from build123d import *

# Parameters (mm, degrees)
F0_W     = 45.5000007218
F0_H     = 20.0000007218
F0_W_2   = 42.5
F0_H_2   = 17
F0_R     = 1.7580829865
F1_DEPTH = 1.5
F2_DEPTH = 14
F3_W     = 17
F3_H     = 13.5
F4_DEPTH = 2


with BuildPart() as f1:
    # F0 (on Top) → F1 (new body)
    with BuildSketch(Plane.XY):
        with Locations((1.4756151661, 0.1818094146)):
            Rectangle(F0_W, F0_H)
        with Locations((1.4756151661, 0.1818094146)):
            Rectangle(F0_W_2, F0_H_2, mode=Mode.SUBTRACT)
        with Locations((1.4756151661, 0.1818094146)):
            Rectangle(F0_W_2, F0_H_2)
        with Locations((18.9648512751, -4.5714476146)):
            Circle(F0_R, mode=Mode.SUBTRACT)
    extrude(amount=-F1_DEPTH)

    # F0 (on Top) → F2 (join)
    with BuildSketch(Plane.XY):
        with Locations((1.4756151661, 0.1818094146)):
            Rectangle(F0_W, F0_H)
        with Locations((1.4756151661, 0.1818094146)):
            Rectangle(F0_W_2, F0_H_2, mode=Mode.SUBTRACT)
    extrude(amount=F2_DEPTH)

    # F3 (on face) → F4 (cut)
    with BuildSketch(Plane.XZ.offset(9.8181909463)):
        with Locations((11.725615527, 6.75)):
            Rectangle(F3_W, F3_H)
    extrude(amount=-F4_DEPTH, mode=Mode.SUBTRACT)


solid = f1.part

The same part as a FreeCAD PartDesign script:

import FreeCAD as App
import Part
import Sketcher


def add_polygon(sketch, points):
    """Adds a closed chain of lines whose ends are joined by coincident constraints."""
    first, n = sketch.GeometryCount, len(points)
    for a, b in zip(points, points[1:] + points[:1]):
        sketch.addGeometry(Part.LineSegment(App.Vector(*a, 0), App.Vector(*b, 0)), False)
    for i in range(n):
        sketch.addConstraint(Sketcher.Constraint("Coincident", first + i, 2, first + (i + 1) % n, 1))

doc = App.newDocument("Part")
params = doc.addObject("Spreadsheet::Sheet", "Params")
for row, (alias, value) in enumerate([
    ("sketch1_height", "20.000001 mm"),
    ("sketch1_width", "45.500001 mm"),
    ("pad1_length", "1.5 mm"),
    ("sketch2_height", "20.000001 mm"),
    ("sketch2_height2", "17 mm"),
    ("sketch2_width", "45.500001 mm"),
    ("sketch2_width2", "42.5 mm"),
    ("pad2_length", "14 mm"),
    ("sketch3_width", "17 mm"),
    ("sketch3_height", "13.5 mm"),
    ("pocket1_length", "2 mm"),
], start=1):
    params.set(f"A{row}", alias)
    params.set(f"B{row}", "=" + value)
    params.setAlias(f"B{row}", alias)

body = doc.addObject("PartDesign::Body", "Body")

sketch1 = body.newObject("Sketcher::SketchObject", "Sketch")
sketch1.AttachmentSupport = (doc.getObject("XY_Plane"), [""])
sketch1.MapMode = "FlatFace"
add_polygon(sketch1, [(-21.3, 10.2), (-21.3, -9.8), (24.2, -9.8), (24.2, 10.2)])
sketch1.addGeometry(Part.Circle(App.Vector(19, -4.6, 0), App.Vector(0, 0, 1), 1.8), False)
sketch1.addConstraint([
    Sketcher.Constraint("Vertical", 0),
    Sketcher.Constraint("Horizontal", 1),
    Sketcher.Constraint("Vertical", 2),
    Sketcher.Constraint("Horizontal", 3),
    Sketcher.Constraint("DistanceY", 0, 2, 0, 1, 20.000001),
    Sketcher.Constraint("DistanceX", 1, 1, 1, 2, 45.500001),
    Sketcher.Constraint("Diameter", 4, 3.516166),
    Sketcher.Constraint("DistanceX", -1, 1, 4, 3, 18.964851),
    Sketcher.Constraint("DistanceY", 0, 2, -1, 1, 9.818191),
    Sketcher.Constraint("DistanceY", 4, 3, -1, 1, 4.571448),
    Sketcher.Constraint("DistanceX", 0, 2, -1, 1, 21.274385),
])
sketch1.setExpression("Constraints[8]", "Params.sketch1_height")
sketch1.setExpression("Constraints[9]", "Params.sketch1_width")
pad1 = body.newObject("PartDesign::Pad", "Pad")
pad1.Profile = sketch1
pad1.setExpression("Length", "Params.pad1_length")
pad1.Reversed = True

sketch2 = body.newObject("Sketcher::SketchObject", "Sketch001")
sketch2.AttachmentSupport = (doc.getObject("XY_Plane"), [""])
sketch2.MapMode = "FlatFace"
add_polygon(sketch2, [(-21, 10), (-21, -10), (24, -10), (24, 10)])
add_polygon(sketch2, [(23, -8), (-20, -8), (-20, 9), (23, 9)])
sketch2.addConstraint([
    Sketcher.Constraint("Vertical", 0),
    Sketcher.Constraint("Horizontal", 1),
    Sketcher.Constraint("Vertical", 2),
    Sketcher.Constraint("Horizontal", 3),
    Sketcher.Constraint("Horizontal", 4),
    Sketcher.Constraint("Vertical", 5),
    Sketcher.Constraint("Horizontal", 6),
    Sketcher.Constraint("Vertical", 7),
    Sketcher.Constraint("DistanceY", 0, 2, 0, 1, 20.000001),
    Sketcher.Constraint("DistanceY", 5, 1, 5, 2, 17.0),
    Sketcher.Constraint("DistanceX", 1, 1, 1, 2, 45.500001),
    Sketcher.Constraint("DistanceX", 4, 2, 4, 1, 42.5),
    Sketcher.Constraint("DistanceX", 4, 2, 1, 2, 44.0),
    Sketcher.Constraint("DistanceY", 0, 2, 4, 2, 1.5),
    Sketcher.Constraint("DistanceY", 0, 2, -1, 1, 9.818191),
    Sketcher.Constraint("DistanceX", 0, 2, -1, 1, 21.274385),
])
sketch2.setExpression("Constraints[16]", "Params.sketch2_height")
sketch2.setExpression("Constraints[17]", "Params.sketch2_height2")
sketch2.setExpression("Constraints[18]", "Params.sketch2_width")
sketch2.setExpression("Constraints[19]", "Params.sketch2_width2")
pad2 = body.newObject("PartDesign::Pad", "Pad001")
pad2.Profile = sketch2
pad2.setExpression("Length", "Params.pad2_length")

sketch3 = body.newObject("Sketcher::SketchObject", "Sketch002")
sketch3.AttachmentSupport = (doc.getObject("XZ_Plane"), [""])
sketch3.MapMode = "FlatFace"
sketch3.AttachmentOffset = App.Placement(App.Vector(0, 0, 9.818191), App.Rotation())
add_polygon(sketch3, [(3, 14), (3, 0), (20, 0), (20, 14)])
sketch3.addConstraint([
    Sketcher.Constraint("Vertical", 0),
    Sketcher.Constraint("Horizontal", 1),
    Sketcher.Constraint("Vertical", 2),
    Sketcher.Constraint("Horizontal", 3),
    Sketcher.Constraint("PointOnObject", 0, 2, -1),
    Sketcher.Constraint("DistanceX", 1, 1, 1, 2, 17.0),
    Sketcher.Constraint("DistanceY", 0, 2, 0, 1, 13.5),
    Sketcher.Constraint("DistanceX", -1, 1, 0, 2, 3.225616),
])
sketch3.setExpression("Constraints[9]", "Params.sketch3_width")
sketch3.setExpression("Constraints[10]", "Params.sketch3_height")
pocket1 = body.newObject("PartDesign::Pocket", "Pocket")
pocket1.Profile = sketch3
pocket1.setExpression("Length", "Params.pocket1_length")

doc.recompute()
